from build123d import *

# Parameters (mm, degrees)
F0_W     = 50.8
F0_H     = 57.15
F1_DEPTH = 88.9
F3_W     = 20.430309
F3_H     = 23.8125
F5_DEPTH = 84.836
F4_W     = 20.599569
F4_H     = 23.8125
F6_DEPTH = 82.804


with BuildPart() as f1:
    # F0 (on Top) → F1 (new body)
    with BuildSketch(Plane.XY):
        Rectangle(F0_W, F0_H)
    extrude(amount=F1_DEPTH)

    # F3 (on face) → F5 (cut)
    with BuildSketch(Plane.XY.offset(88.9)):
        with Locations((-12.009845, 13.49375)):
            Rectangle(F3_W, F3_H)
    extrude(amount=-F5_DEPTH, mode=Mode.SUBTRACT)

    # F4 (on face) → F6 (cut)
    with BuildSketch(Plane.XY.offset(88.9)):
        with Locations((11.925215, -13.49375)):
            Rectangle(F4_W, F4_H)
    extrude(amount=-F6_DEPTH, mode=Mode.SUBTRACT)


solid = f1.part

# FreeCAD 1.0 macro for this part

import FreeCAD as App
import Part
import Sketcher
Q = App.Units.Quantity


def add_polygon(sketch, points):
    """Adds a closed chain of lines whose ends are joined by coincident constraints."""
    first, n = sketch.GeometryCount, len(points)
    for a, b in zip(points, points[1:] + points[:1]):
        sketch.addGeometry(Part.LineSegment(App.Vector(*a, 0), App.Vector(*b, 0)), False)
    for i in range(n):
        sketch.addConstraint(Sketcher.Constraint("Coincident", first + i, 2, first + (i + 1) % n, 1))

doc = App.newDocument("Part")
body = doc.addObject("PartDesign::Body", "Body")

# Sketch on XY plane
sketch1 = body.newObject("Sketcher::SketchObject", "Sketch")
sketch1.AttachmentSupport = (doc.getObject("XY_Plane"), [""])
sketch1.MapMode = "FlatFace"
add_polygon(sketch1, [(-25.4, 28.575), (-25.4, -28.575), (25.4, -28.575), (25.4, 28.575)])  # lines 0-3
sketch1.addConstraint([
    Sketcher.Constraint("Vertical", 0),
    Sketcher.Constraint("Horizontal", 1),
    Sketcher.Constraint("Vertical", 2),
    Sketcher.Constraint("Horizontal", 3),
    Sketcher.Constraint("Symmetric", 0, 2, 2, 2, -1, 1),
    Sketcher.Constraint("DistanceX", 1, 1, 1, 2, Q("2 in")),
    Sketcher.Constraint("DistanceY", 0, 2, 0, 1, Q("2.25 in")),
])
pad1 = body.newObject("PartDesign::Pad", "Pad")
pad1.Profile = sketch1
pad1.Length = Q("3.5 in")

# Sketch on XY plane
sketch2 = body.newObject("Sketcher::SketchObject", "Sketch001")
sketch2.AttachmentSupport = (doc.getObject("XY_Plane"), [""])
sketch2.MapMode = "FlatFace"
sketch2.AttachmentOffset = App.Placement(App.Vector(0, 0, 3.5 * 25.4), App.Rotation())
add_polygon(sketch2, [(-22.224999, 25.4), (-22.224999, 1.5875), (-1.79469, 1.5875), (-1.79469, 25.4)])  # lines 0-3
sketch2.addConstraint([
    Sketcher.Constraint("Vertical", 0),
    Sketcher.Constraint("Horizontal", 1),
    Sketcher.Constraint("Vertical", 2),
    Sketcher.Constraint("Horizontal", 3),
    Sketcher.Constraint("DistanceY", -1, 1, 2, 2, Q("1 in")),
    Sketcher.Constraint("DistanceY", 0, 2, 0, 1, Q("0.9375 in")),
    Sketcher.Constraint("DistanceX", 0, 2, -1, 1, Q("0.875 in")),
    Sketcher.Constraint("DistanceX", 1, 1, 1, 2, Q("20.430309 mm")),
])
pocket1 = body.newObject("PartDesign::Pocket", "Pocket")
pocket1.Profile = sketch2
pocket1.Length = Q("3.34 in")

# Sketch on XY plane
sketch3 = body.newObject("Sketcher::SketchObject", "Sketch002")
sketch3.AttachmentSupport = (doc.getObject("XY_Plane"), [""])
sketch3.MapMode = "FlatFace"
sketch3.AttachmentOffset = App.Placement(App.Vector(0, 0, 3.5 * 25.4), App.Rotation())
add_polygon(sketch3, [(1.625431, -1.5875), (1.625431, -25.4), (22.224999, -25.4), (22.224999, -1.5875)])  # lines 0-3
sketch3.addConstraint([
    Sketcher.Constraint("Vertical", 0),
    Sketcher.Constraint("Horizontal", 1),
    Sketcher.Constraint("Vertical", 2),
    Sketcher.Constraint("Horizontal", 3),
    Sketcher.Constraint("DistanceY", 0, 2, -1, 1, Q("1 in")),
    Sketcher.Constraint("DistanceY", 0, 2, 0, 1, Q("0.9375 in")),
    Sketcher.Constraint("DistanceX", -1, 1, 1, 2, Q("0.875 in")),
    Sketcher.Constraint("DistanceX", 1, 1, 1, 2, Q("20.599569 mm")),
])
pocket2 = body.newObject("PartDesign::Pocket", "Pocket001")
pocket2.Profile = sketch3
pocket2.Length = Q("3.26 in")

doc.recompute()
